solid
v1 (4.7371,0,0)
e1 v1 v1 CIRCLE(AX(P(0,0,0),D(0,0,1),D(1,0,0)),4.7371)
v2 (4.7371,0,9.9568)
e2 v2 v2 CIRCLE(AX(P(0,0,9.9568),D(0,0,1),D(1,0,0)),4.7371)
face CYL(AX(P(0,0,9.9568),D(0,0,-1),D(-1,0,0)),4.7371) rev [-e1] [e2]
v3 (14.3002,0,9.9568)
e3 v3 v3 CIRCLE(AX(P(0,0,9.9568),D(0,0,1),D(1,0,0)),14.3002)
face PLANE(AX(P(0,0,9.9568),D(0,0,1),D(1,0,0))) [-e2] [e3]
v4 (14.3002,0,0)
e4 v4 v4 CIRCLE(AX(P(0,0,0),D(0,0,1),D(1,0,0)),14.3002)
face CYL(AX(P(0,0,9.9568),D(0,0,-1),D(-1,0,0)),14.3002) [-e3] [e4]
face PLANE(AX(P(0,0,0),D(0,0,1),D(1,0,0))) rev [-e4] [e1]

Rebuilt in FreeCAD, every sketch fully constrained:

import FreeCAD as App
import Part
import Sketcher
from FreeCAD import Vector
Q = App.Units.Quantity

doc = App.newDocument("Part")
body = doc.addObject("PartDesign::Body", "Body")

# Sketch on XY plane
sketch1 = body.newObject("Sketcher::SketchObject", "Sketch")
sketch1.AttachmentSupport = (doc.getObject("XY_Plane"), [""])
sketch1.MapMode = "FlatFace"
sketch1.addGeometry([
    Part.Circle(Vector(0, 0, 0), Vector(0, 0, 1), 14.3002),
    Part.Circle(Vector(0, 0, 0), Vector(0, 0, 1), 4.7371),
], False)
sketch1.addConstraint([
    Sketcher.Constraint("Coincident", 0, 3, -1, 1),
    Sketcher.Constraint("Coincident", 1, 3, -1, 1),
    Sketcher.Constraint("Diameter", 0, Q("1.126 in")),
    Sketcher.Constraint("Diameter", 1, Q("0.373 in")),
])
pad1 = body.newObject("PartDesign::Pad", "Pad")
pad1.Profile = sketch1
pad1.Length = Q("0.392 in")

doc.recompute()
